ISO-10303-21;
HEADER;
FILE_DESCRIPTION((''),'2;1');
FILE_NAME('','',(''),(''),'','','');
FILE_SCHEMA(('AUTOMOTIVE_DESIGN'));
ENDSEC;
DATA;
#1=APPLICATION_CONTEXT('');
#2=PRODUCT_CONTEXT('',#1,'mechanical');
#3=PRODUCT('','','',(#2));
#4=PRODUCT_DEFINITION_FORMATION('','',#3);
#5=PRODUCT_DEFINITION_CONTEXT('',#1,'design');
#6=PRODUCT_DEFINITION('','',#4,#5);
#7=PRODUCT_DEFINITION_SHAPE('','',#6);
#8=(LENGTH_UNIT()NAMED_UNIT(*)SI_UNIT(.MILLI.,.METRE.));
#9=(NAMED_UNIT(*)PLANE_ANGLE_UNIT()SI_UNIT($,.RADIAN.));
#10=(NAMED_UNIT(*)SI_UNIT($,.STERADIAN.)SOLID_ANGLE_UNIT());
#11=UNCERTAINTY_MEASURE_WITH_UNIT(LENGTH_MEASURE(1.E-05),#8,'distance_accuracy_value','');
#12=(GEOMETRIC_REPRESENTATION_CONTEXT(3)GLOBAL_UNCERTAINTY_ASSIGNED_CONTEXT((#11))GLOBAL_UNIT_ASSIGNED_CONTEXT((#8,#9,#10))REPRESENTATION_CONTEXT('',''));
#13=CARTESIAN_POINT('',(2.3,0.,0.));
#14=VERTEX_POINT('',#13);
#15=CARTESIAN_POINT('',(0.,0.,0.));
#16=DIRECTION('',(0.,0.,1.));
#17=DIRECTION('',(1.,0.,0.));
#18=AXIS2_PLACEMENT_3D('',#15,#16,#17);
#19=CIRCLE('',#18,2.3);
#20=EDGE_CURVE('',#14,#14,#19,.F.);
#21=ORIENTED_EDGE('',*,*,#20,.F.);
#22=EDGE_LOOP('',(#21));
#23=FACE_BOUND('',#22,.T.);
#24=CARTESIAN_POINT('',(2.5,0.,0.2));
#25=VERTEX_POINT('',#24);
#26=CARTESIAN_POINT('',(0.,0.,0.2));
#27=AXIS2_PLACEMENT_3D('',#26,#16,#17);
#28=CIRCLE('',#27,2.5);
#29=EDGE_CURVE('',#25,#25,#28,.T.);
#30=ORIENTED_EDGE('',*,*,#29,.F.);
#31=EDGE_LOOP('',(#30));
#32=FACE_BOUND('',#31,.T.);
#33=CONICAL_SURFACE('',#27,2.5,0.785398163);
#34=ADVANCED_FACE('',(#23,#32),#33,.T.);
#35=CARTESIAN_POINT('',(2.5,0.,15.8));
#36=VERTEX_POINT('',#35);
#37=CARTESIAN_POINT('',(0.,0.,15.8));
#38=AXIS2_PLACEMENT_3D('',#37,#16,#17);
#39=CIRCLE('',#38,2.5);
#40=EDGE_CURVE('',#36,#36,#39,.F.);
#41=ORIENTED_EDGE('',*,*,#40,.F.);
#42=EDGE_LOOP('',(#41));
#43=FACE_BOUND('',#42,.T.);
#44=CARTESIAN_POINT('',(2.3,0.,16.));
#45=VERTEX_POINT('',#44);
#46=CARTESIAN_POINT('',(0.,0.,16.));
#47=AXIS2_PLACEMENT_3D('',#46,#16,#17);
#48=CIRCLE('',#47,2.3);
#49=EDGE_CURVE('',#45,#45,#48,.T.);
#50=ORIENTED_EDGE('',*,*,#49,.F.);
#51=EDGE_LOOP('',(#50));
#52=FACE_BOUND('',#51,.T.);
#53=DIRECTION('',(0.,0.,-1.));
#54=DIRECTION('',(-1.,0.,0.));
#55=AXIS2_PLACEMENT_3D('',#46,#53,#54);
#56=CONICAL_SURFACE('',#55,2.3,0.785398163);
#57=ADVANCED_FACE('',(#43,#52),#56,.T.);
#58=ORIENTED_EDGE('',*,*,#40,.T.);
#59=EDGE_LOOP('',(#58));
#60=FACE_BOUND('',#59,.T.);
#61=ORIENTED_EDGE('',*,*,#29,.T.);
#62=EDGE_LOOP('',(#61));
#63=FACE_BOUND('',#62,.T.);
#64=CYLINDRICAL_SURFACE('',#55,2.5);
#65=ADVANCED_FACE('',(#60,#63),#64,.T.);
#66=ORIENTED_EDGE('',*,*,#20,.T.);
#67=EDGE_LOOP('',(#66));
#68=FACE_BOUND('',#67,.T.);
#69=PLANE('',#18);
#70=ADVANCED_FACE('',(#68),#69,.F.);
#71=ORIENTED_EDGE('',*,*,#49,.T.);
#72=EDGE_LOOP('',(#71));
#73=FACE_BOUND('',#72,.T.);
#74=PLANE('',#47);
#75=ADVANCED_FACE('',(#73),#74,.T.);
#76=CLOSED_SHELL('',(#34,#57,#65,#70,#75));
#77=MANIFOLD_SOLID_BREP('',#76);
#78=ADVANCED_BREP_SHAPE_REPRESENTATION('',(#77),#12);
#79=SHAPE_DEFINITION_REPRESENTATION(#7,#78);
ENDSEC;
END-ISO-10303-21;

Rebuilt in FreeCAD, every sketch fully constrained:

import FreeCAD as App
import Part
import Sketcher
from FreeCAD import Vector
Q = App.Units.Quantity


def edges_at(feature, points):
    """Names of the edges that pass closest to the given points."""
    edges = feature.Shape.Edges
    near = lambda p: min(range(len(edges)), key=lambda i: edges[i].distToShape(Part.Vertex(*p))[0])
    return sorted({f"Edge{near(p) + 1}" for p in points})

doc = App.newDocument("Part")
body = doc.addObject("PartDesign::Body", "Body")

# Sketch on XY plane
sketch1 = body.newObject("Sketcher::SketchObject", "Sketch")
sketch1.AttachmentSupport = (doc.getObject("XY_Plane"), [""])
sketch1.MapMode = "FlatFace"
sketch1.addGeometry(Part.Circle(Vector(0, 0, 0), Vector(0, 0, 1), 2.5), False)
sketch1.addConstraint(Sketcher.Constraint("Coincident", 0, 3, -1, 1))
sketch1.addConstraint(Sketcher.Constraint("Diameter", 0, Q("5 mm")))
pad1 = body.newObject("PartDesign::Pad", "Pad")
pad1.Profile = sketch1
pad1.Length = 16
doc.recompute()

chamfer = body.newObject("PartDesign::Chamfer", "Chamfer")
chamfer.Base = (pad1, edges_at(pad1, [(-2.5, 0, 0), (-2.5, 0, 16)]))
chamfer.Size = 0.2

doc.recompute()
